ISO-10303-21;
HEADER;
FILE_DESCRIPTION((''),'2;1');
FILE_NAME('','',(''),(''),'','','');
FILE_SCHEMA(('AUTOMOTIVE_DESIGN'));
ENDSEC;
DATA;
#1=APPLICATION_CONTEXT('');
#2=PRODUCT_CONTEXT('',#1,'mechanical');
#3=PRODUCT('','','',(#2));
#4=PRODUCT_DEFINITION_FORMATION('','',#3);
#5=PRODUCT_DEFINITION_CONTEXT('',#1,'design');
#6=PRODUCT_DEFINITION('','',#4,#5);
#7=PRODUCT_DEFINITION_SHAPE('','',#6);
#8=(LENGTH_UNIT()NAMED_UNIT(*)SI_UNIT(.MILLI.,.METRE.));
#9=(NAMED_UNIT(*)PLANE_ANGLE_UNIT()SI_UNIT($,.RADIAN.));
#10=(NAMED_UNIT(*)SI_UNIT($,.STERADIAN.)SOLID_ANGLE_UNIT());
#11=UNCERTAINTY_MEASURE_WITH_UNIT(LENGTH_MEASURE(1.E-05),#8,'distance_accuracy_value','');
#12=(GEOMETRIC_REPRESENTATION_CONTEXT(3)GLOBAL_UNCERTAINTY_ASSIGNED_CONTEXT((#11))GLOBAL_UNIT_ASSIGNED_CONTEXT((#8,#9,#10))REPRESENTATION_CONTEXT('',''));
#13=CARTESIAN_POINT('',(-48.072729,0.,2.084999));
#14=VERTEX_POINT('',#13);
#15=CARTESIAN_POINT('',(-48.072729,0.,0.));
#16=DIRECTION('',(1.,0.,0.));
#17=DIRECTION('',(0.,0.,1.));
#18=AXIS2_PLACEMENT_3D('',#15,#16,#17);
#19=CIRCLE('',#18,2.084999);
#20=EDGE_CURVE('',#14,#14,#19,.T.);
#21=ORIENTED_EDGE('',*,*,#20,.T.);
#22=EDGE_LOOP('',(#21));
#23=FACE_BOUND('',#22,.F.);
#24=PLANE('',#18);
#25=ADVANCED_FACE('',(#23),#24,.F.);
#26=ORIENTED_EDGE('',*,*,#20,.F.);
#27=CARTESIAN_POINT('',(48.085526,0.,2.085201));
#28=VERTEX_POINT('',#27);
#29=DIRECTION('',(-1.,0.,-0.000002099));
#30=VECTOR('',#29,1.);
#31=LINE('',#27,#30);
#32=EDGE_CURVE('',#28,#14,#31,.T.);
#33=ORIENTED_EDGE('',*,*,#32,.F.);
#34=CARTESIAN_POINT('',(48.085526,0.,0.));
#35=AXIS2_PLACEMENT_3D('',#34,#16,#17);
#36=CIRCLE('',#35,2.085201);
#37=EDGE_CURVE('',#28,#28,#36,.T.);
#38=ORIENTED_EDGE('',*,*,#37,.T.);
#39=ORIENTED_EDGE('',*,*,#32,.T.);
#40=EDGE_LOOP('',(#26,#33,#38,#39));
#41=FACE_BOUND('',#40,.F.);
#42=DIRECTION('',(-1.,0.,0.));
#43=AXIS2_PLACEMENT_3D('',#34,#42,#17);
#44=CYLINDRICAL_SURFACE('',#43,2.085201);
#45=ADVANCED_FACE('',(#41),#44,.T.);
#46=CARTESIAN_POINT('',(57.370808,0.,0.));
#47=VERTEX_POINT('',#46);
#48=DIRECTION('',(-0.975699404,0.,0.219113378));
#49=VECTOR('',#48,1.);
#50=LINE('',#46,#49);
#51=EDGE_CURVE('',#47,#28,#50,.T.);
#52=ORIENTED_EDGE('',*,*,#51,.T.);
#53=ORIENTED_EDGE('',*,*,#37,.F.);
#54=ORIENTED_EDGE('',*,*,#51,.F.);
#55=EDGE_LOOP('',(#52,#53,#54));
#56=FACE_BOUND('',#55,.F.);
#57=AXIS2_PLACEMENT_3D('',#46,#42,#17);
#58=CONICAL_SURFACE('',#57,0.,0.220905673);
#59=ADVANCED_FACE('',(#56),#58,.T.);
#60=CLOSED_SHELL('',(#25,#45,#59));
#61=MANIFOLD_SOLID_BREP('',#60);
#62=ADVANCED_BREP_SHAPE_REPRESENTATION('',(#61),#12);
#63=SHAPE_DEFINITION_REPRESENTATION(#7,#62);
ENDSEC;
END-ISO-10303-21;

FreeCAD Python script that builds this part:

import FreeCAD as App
import Part
import Sketcher

doc = App.newDocument("Part")
body = doc.addObject("PartDesign::Body", "Body")

# Sketch on XZ plane
sketch1 = body.newObject("Sketcher::SketchObject", "Sketch")
sketch1.AttachmentSupport = (doc.getObject("XZ_Plane"), [""])
sketch1.MapMode = "FlatFace"
sketch1.addGeometry(Part.LineSegment(App.Vector(-48.072729, 0, 0), App.Vector(48.085735, 0, 0)), False)
sketch1.addGeometry(Part.LineSegment(App.Vector(48.085735, 0, 0), App.Vector(48.085526, 2.085201, 0)), False)
sketch1.addGeometry(Part.LineSegment(App.Vector(48.085526, 2.085201, 0), App.Vector(-48.072729, 2.084999, 0)), False)
sketch1.addGeometry(Part.LineSegment(App.Vector(-48.072729, 2.084999, 0), App.Vector(-48.072729, 0, 0)), False)
sketch1.addConstraint(Sketcher.Constraint("Coincident", 0, 2, 1, 1))
sketch1.addConstraint(Sketcher.Constraint("Coincident", 1, 2, 2, 1))
sketch1.addConstraint(Sketcher.Constraint("Coincident", 2, 2, 3, 1))
sketch1.addConstraint(Sketcher.Constraint("Coincident", 3, 2, 0, 1))
sketch1.addConstraint(Sketcher.Constraint("Horizontal", 0))
sketch1.addConstraint(Sketcher.Constraint("Vertical", 3))
sketch1.addConstraint(Sketcher.Constraint("PointOnObject", 0, 2, -1))
sketch1.addConstraint(Sketcher.Constraint("DistanceY", 3, 2, 3, 1, 2.084999))
sketch1.addConstraint(Sketcher.Constraint("Distance", 1, 2.085201))
sketch1.addConstraint(Sketcher.Constraint("DistanceX", 0, 1, 0, 2, 96.158464))
sketch1.addConstraint(Sketcher.Constraint("DistanceX", 2, 2, -1, 1, 48.072729))
sketch1.addConstraint(Sketcher.Constraint("DistanceX", 1, 2, 0, 2, 0.000209))
revolution = body.newObject("PartDesign::Revolution", "Revolution")
revolution.Profile = sketch1
revolution.ReferenceAxis = (sketch1, ["H_Axis"])
revolution.Angle = 360

# Sketch on XZ plane
sketch2 = body.newObject("Sketcher::SketchObject", "Sketch001")
sketch2.AttachmentSupport = (doc.getObject("XZ_Plane"), [""])
sketch2.MapMode = "FlatFace"
sketch2.addGeometry(Part.LineSegment(App.Vector(48.085526, 2.085201, 0), App.Vector(48.085735, 0, 0)), False)
sketch2.addGeometry(Part.LineSegment(App.Vector(48.085735, 0, 0), App.Vector(57.370808, 0, 0)), False)
sketch2.addGeometry(Part.LineSegment(App.Vector(57.370808, 0, 0), App.Vector(48.085526, 2.085201, 0)), False)
sketch2.addConstraint(Sketcher.Constraint("Coincident", 0, 2, 1, 1))
sketch2.addConstraint(Sketcher.Constraint("Coincident", 1, 2, 2, 1))
sketch2.addConstraint(Sketcher.Constraint("Coincident", 2, 2, 0, 1))
sketch2.addConstraint(Sketcher.Constraint("Horizontal", 1))
sketch2.addConstraint(Sketcher.Constraint("PointOnObject", 0, 2, -1))
sketch2.addConstraint(Sketcher.Constraint("Distance", 0, 2.085201))
sketch2.addConstraint(Sketcher.Constraint("Distance", 2, 9.51654))
sketch2.addConstraint(Sketcher.Constraint("DistanceX", 1, 1, 1, 2, 9.285073))
sketch2.addConstraint(Sketcher.Constraint("DistanceX", -1, 1, 0, 2, 48.085735))
revolution2 = body.newObject("PartDesign::Revolution", "Revolution001")
revolution2.Profile = sketch2
revolution2.ReferenceAxis = (sketch2, ["H_Axis"])
revolution2.Angle = 360

doc.recompute()
